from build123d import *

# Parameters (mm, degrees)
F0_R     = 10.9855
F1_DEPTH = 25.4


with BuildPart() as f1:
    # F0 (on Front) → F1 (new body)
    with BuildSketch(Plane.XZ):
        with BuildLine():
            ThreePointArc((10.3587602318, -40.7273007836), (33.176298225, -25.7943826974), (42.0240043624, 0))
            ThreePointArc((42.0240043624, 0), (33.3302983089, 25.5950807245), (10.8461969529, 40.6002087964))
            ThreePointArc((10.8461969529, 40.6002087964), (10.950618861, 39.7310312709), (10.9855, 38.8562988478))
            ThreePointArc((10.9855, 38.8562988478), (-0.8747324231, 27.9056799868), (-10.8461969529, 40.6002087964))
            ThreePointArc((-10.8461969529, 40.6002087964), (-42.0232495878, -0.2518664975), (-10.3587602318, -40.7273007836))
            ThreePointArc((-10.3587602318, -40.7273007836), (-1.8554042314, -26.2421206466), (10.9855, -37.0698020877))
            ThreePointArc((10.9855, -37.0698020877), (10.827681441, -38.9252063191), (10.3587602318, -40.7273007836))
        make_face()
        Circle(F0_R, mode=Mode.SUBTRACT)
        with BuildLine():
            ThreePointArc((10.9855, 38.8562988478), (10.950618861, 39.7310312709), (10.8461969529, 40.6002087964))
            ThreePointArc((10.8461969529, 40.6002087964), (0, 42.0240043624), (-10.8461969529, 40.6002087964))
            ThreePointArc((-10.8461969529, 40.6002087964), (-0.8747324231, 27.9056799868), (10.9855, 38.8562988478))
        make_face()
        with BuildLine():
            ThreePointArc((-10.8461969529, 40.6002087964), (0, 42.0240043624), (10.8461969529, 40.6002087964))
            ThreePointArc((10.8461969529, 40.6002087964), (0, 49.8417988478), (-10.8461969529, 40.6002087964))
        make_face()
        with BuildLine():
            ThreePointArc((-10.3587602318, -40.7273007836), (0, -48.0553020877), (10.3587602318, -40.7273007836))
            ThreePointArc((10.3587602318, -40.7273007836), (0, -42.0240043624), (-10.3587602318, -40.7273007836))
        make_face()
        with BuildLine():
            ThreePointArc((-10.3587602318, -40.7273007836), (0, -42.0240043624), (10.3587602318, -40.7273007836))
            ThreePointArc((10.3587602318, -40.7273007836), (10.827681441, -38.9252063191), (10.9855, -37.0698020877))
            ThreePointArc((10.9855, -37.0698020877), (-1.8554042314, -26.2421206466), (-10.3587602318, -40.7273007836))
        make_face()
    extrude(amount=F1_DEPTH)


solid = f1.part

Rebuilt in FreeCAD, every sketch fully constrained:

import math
import FreeCAD as App
import Part
import Sketcher
from FreeCAD import Vector
Q = App.Units.Quantity

doc = App.newDocument("Part")
body = doc.addObject("PartDesign::Body", "Body")

# Sketch on XZ plane
sketch1 = body.newObject("Sketcher::SketchObject", "Sketch")
sketch1.AttachmentSupport = (doc.getObject("XZ_Plane"), [""])
sketch1.MapMode = "FlatFace"
sketch1.addGeometry(Part.ArcOfCircle(Part.Circle(Vector(0, 0, 0), Vector(0, 0, 1), 42), math.radians(-76), math.radians(0)), False)
sketch1.addGeometry(Part.ArcOfCircle(Part.Circle(Vector(0, 0, 0), Vector(0, 0, 1), 42), math.radians(0), math.radians(75)), False)
sketch1.addGeometry(Part.ArcOfCircle(Part.Circle(Vector(0, 39, 0), Vector(0, 0, 1), 11), math.radians(9), math.radians(171)), False)
sketch1.addGeometry(Part.ArcOfCircle(Part.Circle(Vector(0, 0, 0), Vector(0, 0, 1), 42), math.radians(105), math.radians(256)), False)
sketch1.addGeometry(Part.ArcOfCircle(Part.Circle(Vector(0, -37, 0), Vector(0, 0, 1), 11), math.radians(-161), math.radians(-19)), False)
sketch1.addGeometry(Part.Circle(Vector(0, 0, 0), Vector(0, 0, 1), 11), False)
sketch1.addConstraint(Sketcher.Constraint("Tangent", 0, 2, 1, 1))
sketch1.addConstraint(Sketcher.Constraint("Coincident", 1, 2, 2, 1))
sketch1.addConstraint(Sketcher.Constraint("Coincident", 2, 2, 3, 1))
sketch1.addConstraint(Sketcher.Constraint("Coincident", 3, 2, 4, 1))
sketch1.addConstraint(Sketcher.Constraint("Coincident", 4, 2, 0, 1))
sketch1.addConstraint(Sketcher.Constraint("Coincident", 0, 3, -1, 1))
sketch1.addConstraint(Sketcher.Constraint("Coincident", 3, 3, -1, 1))
sketch1.addConstraint(Sketcher.Constraint("Coincident", 5, 3, -1, 1))
sketch1.addConstraint(Sketcher.Constraint("Equal", 0, 1))
sketch1.addConstraint(Sketcher.Constraint("Equal", 1, 3))
sketch1.addConstraint(Sketcher.Constraint("Equal", 2, 4))
sketch1.addConstraint(Sketcher.Constraint("Equal", 4, 5))
sketch1.addConstraint(Sketcher.Constraint("PointOnObject", 2, 3, -2))
sketch1.addConstraint(Sketcher.Constraint("PointOnObject", 4, 3, -2))
sketch1.addConstraint(Sketcher.Constraint("PointOnObject", 0, 2, -1))
sketch1.addConstraint(Sketcher.Constraint("Diameter", 5, Q("0.865 in")))
sketch1.addConstraint(Sketcher.Constraint("Radius", 0, 42.024004))
sketch1.addConstraint(Sketcher.Constraint("DistanceY", -1, 1, 2, 3, 38.856299))
sketch1.addConstraint(Sketcher.Constraint("DistanceY", 3, 2, -1, 1, 40.727301))
pad1 = body.newObject("PartDesign::Pad", "Pad")
pad1.Profile = sketch1
pad1.Length = Q("1 in")

doc.recompute()
